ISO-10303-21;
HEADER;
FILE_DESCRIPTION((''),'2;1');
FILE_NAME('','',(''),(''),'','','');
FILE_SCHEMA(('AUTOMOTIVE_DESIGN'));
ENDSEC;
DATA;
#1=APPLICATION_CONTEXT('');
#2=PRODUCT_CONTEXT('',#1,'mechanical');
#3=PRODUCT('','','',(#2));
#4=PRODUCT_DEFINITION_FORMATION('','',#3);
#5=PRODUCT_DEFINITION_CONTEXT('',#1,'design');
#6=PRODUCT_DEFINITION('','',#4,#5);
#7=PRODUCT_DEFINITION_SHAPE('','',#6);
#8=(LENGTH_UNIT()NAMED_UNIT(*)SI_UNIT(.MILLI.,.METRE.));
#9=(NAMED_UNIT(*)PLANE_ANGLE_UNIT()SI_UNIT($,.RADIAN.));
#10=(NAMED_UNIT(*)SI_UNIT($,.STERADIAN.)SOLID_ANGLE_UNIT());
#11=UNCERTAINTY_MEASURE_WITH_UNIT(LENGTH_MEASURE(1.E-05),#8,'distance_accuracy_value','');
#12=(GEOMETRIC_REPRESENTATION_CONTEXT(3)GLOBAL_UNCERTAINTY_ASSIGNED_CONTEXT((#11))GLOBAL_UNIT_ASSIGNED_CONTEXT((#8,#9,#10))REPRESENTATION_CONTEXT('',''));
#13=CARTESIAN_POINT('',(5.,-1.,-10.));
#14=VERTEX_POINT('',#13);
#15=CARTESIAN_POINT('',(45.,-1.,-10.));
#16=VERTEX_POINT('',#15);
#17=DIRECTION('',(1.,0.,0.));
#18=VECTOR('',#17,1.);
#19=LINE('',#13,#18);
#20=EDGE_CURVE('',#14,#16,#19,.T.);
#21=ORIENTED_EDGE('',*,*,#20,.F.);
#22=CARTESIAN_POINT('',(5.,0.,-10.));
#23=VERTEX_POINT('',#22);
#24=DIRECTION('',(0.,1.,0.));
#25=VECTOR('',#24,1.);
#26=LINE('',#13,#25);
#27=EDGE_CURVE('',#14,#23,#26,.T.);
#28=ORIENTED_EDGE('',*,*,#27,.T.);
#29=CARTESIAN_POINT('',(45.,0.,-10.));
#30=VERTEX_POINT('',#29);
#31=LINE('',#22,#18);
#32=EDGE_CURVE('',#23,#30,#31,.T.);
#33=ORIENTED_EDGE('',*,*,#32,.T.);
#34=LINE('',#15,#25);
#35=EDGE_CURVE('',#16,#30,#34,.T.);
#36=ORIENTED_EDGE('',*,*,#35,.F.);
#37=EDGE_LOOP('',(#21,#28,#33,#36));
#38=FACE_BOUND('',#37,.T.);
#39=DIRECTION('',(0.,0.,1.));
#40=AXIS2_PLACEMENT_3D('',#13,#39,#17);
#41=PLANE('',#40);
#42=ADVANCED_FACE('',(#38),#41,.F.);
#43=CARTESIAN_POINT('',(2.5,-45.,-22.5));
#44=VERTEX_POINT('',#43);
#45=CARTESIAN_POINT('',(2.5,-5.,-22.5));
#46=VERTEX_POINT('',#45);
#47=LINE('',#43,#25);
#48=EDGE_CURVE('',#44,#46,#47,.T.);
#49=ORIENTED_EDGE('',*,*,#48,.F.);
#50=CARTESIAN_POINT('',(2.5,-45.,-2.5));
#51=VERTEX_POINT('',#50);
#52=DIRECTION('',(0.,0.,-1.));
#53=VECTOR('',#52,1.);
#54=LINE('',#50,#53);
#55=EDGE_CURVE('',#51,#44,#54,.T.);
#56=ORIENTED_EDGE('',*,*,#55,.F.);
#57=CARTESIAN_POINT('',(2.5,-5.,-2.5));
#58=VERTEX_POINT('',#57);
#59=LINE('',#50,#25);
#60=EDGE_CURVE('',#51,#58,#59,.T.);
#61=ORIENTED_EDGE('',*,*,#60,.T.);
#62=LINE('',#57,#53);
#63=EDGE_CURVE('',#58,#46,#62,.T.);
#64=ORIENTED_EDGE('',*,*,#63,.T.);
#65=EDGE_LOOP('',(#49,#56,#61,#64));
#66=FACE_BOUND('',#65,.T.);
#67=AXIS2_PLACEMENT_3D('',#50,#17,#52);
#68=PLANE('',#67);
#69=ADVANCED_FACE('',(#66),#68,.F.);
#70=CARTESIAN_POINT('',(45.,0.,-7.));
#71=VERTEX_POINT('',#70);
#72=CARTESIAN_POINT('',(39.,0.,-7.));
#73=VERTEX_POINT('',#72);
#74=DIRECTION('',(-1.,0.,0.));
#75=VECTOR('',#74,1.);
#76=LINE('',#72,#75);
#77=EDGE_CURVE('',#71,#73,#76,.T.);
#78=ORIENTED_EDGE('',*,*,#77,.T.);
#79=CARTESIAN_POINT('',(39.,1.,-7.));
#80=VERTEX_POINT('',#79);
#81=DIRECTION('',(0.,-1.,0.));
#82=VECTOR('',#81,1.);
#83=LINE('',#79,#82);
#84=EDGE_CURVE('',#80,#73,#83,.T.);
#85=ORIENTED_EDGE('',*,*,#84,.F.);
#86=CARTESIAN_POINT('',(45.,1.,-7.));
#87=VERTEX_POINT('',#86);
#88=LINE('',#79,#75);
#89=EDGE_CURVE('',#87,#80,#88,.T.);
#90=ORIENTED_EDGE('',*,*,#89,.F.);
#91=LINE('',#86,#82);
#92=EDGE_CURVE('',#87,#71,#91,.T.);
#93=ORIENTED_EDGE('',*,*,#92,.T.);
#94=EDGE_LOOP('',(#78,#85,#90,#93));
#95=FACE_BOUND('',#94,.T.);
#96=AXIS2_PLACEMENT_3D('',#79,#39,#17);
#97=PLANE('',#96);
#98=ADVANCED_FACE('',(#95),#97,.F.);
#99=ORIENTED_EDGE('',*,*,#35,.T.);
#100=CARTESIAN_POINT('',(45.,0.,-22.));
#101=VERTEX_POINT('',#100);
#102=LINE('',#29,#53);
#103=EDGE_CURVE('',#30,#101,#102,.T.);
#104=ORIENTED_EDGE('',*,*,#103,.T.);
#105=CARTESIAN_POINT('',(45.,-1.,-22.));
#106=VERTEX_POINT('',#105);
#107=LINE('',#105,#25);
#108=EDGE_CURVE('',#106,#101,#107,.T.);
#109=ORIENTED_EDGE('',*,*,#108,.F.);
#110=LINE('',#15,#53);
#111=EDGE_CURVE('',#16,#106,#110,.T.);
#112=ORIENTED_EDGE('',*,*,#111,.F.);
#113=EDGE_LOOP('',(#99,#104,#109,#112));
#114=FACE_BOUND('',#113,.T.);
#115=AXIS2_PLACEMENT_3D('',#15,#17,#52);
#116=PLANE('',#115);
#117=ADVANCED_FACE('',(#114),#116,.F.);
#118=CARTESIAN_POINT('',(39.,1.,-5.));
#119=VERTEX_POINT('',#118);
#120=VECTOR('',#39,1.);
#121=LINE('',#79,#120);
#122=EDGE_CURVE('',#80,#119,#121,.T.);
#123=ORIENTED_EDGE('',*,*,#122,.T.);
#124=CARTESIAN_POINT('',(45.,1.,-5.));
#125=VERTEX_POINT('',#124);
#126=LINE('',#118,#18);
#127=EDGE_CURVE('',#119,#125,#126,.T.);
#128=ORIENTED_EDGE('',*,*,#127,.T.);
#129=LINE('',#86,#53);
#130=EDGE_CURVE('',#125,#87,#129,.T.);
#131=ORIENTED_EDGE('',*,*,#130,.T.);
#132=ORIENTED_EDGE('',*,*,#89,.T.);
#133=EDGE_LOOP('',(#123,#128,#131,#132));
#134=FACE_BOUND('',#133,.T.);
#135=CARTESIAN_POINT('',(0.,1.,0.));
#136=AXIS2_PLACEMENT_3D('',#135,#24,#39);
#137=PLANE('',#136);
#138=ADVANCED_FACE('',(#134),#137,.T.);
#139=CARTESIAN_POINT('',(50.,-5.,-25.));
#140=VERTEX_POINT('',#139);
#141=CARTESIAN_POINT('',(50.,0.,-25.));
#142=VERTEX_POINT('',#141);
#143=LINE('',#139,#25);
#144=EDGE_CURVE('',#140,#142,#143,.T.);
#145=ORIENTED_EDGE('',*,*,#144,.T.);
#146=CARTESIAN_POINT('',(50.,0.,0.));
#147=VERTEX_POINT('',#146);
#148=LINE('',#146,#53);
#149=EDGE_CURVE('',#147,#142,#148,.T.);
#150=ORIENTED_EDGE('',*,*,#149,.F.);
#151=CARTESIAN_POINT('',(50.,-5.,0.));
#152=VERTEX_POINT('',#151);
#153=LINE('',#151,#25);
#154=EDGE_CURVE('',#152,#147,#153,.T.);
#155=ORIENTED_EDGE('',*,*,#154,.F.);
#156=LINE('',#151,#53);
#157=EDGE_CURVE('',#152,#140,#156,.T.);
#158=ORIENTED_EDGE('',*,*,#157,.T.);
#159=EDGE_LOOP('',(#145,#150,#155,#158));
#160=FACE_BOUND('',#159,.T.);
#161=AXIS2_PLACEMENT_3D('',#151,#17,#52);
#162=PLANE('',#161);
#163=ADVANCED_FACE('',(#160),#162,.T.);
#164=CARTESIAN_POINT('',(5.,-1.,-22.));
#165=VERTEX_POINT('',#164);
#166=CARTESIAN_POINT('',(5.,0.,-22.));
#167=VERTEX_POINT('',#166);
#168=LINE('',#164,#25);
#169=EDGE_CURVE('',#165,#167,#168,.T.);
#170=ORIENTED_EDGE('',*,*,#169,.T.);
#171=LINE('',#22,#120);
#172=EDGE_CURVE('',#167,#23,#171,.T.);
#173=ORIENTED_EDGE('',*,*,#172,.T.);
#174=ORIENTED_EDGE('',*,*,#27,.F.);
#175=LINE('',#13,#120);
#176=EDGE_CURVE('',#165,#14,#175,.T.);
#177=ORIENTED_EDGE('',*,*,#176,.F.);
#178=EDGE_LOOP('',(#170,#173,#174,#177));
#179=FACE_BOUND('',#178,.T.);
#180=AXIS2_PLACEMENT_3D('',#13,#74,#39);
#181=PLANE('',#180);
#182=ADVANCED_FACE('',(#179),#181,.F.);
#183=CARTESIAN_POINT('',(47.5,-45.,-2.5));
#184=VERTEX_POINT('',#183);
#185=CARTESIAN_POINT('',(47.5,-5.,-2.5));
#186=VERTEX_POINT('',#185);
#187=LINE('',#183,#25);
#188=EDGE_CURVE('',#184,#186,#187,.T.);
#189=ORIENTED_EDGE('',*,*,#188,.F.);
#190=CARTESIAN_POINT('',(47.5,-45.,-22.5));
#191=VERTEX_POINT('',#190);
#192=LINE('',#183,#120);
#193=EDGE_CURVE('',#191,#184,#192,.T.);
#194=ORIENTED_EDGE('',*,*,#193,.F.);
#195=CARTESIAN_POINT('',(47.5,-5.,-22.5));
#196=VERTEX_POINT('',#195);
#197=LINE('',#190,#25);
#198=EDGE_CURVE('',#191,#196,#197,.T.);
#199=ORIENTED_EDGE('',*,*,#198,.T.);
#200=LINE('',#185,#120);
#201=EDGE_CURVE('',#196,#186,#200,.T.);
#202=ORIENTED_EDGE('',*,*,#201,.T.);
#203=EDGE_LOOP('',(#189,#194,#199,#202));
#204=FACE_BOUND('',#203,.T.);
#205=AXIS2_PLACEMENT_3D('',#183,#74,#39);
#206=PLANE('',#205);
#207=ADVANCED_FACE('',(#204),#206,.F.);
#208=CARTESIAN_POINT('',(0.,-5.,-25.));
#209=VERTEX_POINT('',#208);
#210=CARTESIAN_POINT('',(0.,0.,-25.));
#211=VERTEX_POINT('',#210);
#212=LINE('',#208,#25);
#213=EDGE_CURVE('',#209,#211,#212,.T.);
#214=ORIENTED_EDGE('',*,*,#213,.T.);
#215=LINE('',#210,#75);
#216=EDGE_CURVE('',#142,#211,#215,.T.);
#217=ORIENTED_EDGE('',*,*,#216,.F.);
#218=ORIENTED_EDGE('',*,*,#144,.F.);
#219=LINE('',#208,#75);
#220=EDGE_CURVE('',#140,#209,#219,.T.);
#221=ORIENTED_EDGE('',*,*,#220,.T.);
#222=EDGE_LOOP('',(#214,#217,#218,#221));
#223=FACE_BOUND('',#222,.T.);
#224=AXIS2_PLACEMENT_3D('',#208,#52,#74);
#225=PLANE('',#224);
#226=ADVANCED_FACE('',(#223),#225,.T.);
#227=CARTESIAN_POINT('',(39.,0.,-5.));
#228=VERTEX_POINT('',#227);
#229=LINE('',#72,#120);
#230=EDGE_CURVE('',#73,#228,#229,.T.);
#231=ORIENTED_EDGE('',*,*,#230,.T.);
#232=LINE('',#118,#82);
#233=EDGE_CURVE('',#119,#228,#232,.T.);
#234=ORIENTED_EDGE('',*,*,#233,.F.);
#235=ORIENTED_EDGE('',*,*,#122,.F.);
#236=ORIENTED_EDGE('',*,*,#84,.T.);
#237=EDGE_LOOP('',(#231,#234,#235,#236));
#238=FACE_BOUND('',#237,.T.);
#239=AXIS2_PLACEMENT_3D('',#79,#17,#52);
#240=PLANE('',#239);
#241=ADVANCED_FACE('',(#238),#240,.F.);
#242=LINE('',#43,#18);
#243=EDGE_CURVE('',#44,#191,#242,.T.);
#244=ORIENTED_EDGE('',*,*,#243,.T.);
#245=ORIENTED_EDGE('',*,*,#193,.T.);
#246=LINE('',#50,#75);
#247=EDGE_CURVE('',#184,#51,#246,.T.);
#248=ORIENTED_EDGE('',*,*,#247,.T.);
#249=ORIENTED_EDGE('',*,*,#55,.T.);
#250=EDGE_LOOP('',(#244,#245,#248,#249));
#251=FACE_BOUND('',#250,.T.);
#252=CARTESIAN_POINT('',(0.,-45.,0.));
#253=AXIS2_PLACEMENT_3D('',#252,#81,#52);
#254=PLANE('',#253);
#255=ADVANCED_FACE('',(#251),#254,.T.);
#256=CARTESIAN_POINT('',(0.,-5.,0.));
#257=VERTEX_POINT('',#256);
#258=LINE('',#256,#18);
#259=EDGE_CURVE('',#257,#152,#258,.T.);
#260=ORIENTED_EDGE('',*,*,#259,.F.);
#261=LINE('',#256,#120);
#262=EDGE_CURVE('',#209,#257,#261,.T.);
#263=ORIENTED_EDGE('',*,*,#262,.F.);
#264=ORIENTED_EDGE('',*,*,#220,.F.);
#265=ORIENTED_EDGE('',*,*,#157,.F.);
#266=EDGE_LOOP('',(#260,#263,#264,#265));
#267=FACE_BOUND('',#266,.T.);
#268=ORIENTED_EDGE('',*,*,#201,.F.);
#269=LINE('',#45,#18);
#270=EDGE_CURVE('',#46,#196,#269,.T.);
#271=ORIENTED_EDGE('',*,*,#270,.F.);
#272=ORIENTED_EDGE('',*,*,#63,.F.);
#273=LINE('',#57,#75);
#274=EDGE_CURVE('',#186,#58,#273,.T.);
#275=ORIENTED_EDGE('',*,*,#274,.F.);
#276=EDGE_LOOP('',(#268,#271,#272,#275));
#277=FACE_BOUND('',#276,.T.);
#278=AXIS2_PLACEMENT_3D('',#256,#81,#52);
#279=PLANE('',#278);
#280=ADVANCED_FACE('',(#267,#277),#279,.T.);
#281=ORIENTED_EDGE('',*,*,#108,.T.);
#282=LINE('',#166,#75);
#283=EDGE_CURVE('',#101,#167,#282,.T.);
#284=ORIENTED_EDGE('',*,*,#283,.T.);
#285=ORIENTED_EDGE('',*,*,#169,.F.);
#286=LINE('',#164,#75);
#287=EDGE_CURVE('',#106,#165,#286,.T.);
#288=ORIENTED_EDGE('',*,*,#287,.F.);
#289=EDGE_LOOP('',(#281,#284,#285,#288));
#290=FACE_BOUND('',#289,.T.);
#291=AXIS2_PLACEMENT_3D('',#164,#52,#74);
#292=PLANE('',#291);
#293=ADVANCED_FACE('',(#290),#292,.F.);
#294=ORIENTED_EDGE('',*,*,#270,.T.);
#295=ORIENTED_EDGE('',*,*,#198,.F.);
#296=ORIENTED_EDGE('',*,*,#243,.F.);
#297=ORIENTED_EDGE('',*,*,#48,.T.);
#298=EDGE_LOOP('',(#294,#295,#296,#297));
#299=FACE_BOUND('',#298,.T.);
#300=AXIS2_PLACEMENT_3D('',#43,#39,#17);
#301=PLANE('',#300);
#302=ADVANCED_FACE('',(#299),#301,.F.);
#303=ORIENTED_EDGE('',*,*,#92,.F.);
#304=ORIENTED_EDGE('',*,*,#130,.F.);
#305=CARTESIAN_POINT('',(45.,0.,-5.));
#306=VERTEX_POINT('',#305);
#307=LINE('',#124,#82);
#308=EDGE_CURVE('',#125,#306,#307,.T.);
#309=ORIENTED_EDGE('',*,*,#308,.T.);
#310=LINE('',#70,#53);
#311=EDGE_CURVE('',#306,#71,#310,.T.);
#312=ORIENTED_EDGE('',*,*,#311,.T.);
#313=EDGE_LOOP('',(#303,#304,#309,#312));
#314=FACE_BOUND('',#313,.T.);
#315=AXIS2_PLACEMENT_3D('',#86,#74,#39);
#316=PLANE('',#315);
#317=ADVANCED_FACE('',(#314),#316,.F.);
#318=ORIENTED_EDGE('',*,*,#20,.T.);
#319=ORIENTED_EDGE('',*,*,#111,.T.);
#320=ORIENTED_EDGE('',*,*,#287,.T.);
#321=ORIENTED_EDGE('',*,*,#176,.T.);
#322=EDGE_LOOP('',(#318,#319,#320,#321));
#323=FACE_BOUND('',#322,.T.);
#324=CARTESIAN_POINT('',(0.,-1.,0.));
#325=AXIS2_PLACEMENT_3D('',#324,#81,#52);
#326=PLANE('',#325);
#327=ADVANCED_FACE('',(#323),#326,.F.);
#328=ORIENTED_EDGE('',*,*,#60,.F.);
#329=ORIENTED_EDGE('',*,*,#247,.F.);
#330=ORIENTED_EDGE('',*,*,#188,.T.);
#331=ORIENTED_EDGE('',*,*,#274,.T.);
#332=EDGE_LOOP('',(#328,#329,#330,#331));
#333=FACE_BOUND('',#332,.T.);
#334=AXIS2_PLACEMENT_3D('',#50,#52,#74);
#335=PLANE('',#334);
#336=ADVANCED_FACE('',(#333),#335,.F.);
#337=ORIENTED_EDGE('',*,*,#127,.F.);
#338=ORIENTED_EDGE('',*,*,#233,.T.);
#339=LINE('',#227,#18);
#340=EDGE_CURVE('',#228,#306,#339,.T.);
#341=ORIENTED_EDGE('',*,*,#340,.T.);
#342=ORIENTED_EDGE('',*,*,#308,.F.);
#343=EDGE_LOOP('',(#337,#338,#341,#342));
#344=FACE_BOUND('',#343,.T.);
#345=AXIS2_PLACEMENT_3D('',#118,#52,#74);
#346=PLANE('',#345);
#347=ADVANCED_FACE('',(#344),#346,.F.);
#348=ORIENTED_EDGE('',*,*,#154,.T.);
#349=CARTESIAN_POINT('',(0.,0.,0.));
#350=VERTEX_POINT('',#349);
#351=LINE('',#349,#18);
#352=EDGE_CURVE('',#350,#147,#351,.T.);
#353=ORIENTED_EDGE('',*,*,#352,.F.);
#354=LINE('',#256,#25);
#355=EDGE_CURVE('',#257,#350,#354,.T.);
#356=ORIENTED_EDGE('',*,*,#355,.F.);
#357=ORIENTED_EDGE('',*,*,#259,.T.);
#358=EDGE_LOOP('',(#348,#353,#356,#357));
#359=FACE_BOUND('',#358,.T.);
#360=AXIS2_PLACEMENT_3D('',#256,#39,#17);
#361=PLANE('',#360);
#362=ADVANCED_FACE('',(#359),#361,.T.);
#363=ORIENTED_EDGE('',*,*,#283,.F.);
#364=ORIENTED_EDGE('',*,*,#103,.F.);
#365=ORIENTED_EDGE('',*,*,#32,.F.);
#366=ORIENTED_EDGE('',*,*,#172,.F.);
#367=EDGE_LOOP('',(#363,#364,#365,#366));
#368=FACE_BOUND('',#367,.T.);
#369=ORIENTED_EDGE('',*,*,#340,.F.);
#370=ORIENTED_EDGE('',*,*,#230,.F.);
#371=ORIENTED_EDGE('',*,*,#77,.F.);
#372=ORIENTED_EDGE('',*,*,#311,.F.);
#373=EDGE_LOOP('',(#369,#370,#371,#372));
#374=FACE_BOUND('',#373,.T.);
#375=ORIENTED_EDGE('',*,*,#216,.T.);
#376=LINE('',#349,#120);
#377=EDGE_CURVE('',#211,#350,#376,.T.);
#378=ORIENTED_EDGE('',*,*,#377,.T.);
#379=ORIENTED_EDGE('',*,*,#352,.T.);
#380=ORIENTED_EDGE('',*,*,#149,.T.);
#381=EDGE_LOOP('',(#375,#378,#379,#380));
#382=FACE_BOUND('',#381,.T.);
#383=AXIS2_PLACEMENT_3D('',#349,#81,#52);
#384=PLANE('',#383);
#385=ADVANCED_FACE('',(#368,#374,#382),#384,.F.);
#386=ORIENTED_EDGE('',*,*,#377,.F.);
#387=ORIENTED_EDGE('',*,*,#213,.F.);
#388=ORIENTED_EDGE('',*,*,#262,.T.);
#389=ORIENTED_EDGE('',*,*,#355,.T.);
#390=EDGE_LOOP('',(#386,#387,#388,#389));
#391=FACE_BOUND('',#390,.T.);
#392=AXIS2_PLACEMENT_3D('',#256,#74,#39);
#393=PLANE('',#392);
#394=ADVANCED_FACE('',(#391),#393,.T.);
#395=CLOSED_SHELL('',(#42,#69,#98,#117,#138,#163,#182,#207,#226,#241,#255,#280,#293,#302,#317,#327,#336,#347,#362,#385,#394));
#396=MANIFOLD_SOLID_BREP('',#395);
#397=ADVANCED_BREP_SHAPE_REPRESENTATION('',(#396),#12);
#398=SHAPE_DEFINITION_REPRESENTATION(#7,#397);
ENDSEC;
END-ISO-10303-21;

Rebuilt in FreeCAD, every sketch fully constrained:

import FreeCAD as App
import Part
import Sketcher

doc = App.newDocument("Part")
body = doc.addObject("PartDesign::Body", "Body")

sketch1 = body.newObject("Sketcher::SketchObject", "Sketch")
sketch1.AttachmentSupport = (doc.getObject("XZ_Plane"), [""])
sketch1.MapMode = "FlatFace"
sketch1.addGeometry([
    Part.LineSegment(App.Vector(0, -25, 0), App.Vector(0, 0, 0)),
    Part.LineSegment(App.Vector(0, 0, 0), App.Vector(50, 0, 0)),
    Part.LineSegment(App.Vector(50, 0, 0), App.Vector(50, -25, 0)),
    Part.LineSegment(App.Vector(50, -25, 0), App.Vector(0, -25, 0)),
], False)
sketch1.addConstraint([
    Sketcher.Constraint("Coincident", 0, 2, 1, 1),
    Sketcher.Constraint("Coincident", 1, 2, 2, 1),
    Sketcher.Constraint("Coincident", 2, 2, 3, 1),
    Sketcher.Constraint("Coincident", 3, 2, 0, 1),
    Sketcher.Constraint("Vertical", 0),
    Sketcher.Constraint("Horizontal", 1),
    Sketcher.Constraint("Vertical", 2),
    Sketcher.Constraint("Horizontal", 3),
    Sketcher.Constraint("Coincident", 0, 2, -1, 1),
    Sketcher.Constraint("DistanceX", 1, 1, 1, 2, 50.0),
    Sketcher.Constraint("DistanceY", 0, 1, 0, 2, 25.0),
])
pad1 = body.newObject("PartDesign::Pad", "Pad")
pad1.Profile = sketch1
pad1.Length = 5

sketch2 = body.newObject("Sketcher::SketchObject", "Sketch001")
sketch2.AttachmentSupport = (doc.getObject("XZ_Plane"), [""])
sketch2.MapMode = "FlatFace"
sketch2.AttachmentOffset = App.Placement(App.Vector(0, 0, 5), App.Rotation())
sketch2.addGeometry([
    Part.LineSegment(App.Vector(2.5, -2.5, 0), App.Vector(2.5, -22.5, 0)),
    Part.LineSegment(App.Vector(2.5, -22.5, 0), App.Vector(47.5, -22.5, 0)),
    Part.LineSegment(App.Vector(47.5, -22.5, 0), App.Vector(47.5, -2.5, 0)),
    Part.LineSegment(App.Vector(47.5, -2.5, 0), App.Vector(2.5, -2.5, 0)),
], False)
sketch2.addConstraint([
    Sketcher.Constraint("Coincident", 0, 2, 1, 1),
    Sketcher.Constraint("Coincident", 1, 2, 2, 1),
    Sketcher.Constraint("Coincident", 2, 2, 3, 1),
    Sketcher.Constraint("Coincident", 3, 2, 0, 1),
    Sketcher.Constraint("Vertical", 0),
    Sketcher.Constraint("Horizontal", 1),
    Sketcher.Constraint("Vertical", 2),
    Sketcher.Constraint("Horizontal", 3),
    Sketcher.Constraint("DistanceX", 1, 1, 1, 2, 45.0),
    Sketcher.Constraint("DistanceY", 0, 2, 0, 1, 20.0),
    Sketcher.Constraint("DistanceX", -1, 1, 0, 2, 2.5),
    Sketcher.Constraint("DistanceY", 0, 2, -1, 1, 22.5),
])
pad2 = body.newObject("PartDesign::Pad", "Pad001")
pad2.Profile = sketch2
pad2.Length = 40

sketch3 = body.newObject("Sketcher::SketchObject", "Sketch002")
sketch3.AttachmentSupport = (doc.getObject("XZ_Plane"), [""])
sketch3.MapMode = "FlatFace"
sketch3.addGeometry([
    Part.LineSegment(App.Vector(5, -22, 0), App.Vector(5, -10, 0)),
    Part.LineSegment(App.Vector(5, -10, 0), App.Vector(45, -10, 0)),
    Part.LineSegment(App.Vector(45, -10, 0), App.Vector(45, -22, 0)),
    Part.LineSegment(App.Vector(45, -22, 0), App.Vector(5, -22, 0)),
], False)
sketch3.addConstraint([
    Sketcher.Constraint("Coincident", 0, 2, 1, 1),
    Sketcher.Constraint("Coincident", 1, 2, 2, 1),
    Sketcher.Constraint("Coincident", 2, 2, 3, 1),
    Sketcher.Constraint("Coincident", 3, 2, 0, 1),
    Sketcher.Constraint("Vertical", 0),
    Sketcher.Constraint("Horizontal", 1),
    Sketcher.Constraint("Vertical", 2),
    Sketcher.Constraint("Horizontal", 3),
    Sketcher.Constraint("DistanceX", 1, 1, 1, 2, 40.0),
    Sketcher.Constraint("DistanceY", 0, 1, 0, 2, 12.0),
    Sketcher.Constraint("DistanceX", -1, 1, 0, 2, 5.0),
    Sketcher.Constraint("DistanceY", 0, 2, -1, 1, 10.0),
])
pocket1 = body.newObject("PartDesign::Pocket", "Pocket")
pocket1.Profile = sketch3
pocket1.Length = 1
pocket1.Reversed = True

sketch4 = body.newObject("Sketcher::SketchObject", "Sketch003")
sketch4.AttachmentSupport = (doc.getObject("XZ_Plane"), [""])
sketch4.MapMode = "FlatFace"
sketch4.addGeometry([
    Part.LineSegment(App.Vector(39, -7, 0), App.Vector(39, -5, 0)),
    Part.LineSegment(App.Vector(39, -5, 0), App.Vector(45, -5, 0)),
    Part.LineSegment(App.Vector(45, -5, 0), App.Vector(45, -7, 0)),
    Part.LineSegment(App.Vector(45, -7, 0), App.Vector(39, -7, 0)),
], False)
sketch4.addConstraint([
    Sketcher.Constraint("Coincident", 0, 2, 1, 1),
    Sketcher.Constraint("Coincident", 1, 2, 2, 1),
    Sketcher.Constraint("Coincident", 2, 2, 3, 1),
    Sketcher.Constraint("Coincident", 3, 2, 0, 1),
    Sketcher.Constraint("Vertical", 0),
    Sketcher.Constraint("Horizontal", 1),
    Sketcher.Constraint("Vertical", 2),
    Sketcher.Constraint("Horizontal", 3),
    Sketcher.Constraint("DistanceX", 1, 1, 1, 2, 6.0),
    Sketcher.Constraint("DistanceY", 0, 1, 0, 2, 2.0),
    Sketcher.Constraint("DistanceX", -1, 1, 0, 2, 39.0),
    Sketcher.Constraint("DistanceY", 0, 2, -1, 1, 5.0),
])
pad3 = body.newObject("PartDesign::Pad", "Pad002")
pad3.Profile = sketch4
pad3.Length = 1
pad3.Reversed = True

doc.recompute()
